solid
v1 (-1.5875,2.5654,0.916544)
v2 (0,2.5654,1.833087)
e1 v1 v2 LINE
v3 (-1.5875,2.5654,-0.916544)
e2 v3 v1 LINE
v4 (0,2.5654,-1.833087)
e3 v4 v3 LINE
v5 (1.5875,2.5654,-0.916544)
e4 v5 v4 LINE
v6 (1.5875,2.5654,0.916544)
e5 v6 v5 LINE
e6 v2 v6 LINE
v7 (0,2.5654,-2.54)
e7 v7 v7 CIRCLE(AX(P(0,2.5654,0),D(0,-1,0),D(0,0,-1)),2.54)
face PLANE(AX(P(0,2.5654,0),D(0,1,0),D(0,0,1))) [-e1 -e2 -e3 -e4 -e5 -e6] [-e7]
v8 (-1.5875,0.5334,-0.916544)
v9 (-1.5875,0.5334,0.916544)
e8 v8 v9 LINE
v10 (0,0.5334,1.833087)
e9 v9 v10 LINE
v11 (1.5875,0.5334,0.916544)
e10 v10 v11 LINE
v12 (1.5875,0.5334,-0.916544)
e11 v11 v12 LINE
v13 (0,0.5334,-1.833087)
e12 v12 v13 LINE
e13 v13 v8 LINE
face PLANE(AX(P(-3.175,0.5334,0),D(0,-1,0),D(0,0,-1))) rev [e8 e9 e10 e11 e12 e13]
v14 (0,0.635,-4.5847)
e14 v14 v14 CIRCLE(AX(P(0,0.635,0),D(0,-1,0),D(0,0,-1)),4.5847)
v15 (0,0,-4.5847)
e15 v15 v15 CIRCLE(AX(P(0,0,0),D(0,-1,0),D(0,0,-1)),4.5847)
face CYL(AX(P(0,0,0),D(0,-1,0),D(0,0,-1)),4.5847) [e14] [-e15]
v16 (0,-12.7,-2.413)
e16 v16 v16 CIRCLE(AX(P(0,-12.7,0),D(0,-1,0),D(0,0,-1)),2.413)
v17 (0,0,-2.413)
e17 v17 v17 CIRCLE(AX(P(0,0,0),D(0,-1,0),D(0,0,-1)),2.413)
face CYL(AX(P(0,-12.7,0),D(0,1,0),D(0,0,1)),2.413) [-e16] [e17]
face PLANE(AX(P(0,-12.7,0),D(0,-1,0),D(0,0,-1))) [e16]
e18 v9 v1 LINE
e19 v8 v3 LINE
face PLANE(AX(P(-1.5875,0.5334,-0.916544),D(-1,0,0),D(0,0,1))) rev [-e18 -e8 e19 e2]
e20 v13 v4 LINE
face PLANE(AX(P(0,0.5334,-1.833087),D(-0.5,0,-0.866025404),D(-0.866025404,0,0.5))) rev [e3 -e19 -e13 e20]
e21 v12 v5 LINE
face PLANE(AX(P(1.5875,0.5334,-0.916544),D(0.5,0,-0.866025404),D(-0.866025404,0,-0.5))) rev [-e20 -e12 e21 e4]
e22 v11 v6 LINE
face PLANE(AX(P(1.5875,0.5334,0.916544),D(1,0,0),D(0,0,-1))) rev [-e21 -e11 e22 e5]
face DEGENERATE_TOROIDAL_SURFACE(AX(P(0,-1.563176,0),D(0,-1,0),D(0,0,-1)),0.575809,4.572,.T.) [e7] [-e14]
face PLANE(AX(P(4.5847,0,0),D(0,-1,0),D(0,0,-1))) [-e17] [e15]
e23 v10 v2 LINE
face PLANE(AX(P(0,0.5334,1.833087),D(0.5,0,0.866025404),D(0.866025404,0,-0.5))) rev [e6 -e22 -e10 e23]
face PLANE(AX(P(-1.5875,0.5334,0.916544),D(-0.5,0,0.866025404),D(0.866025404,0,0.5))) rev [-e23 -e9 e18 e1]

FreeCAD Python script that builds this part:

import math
import FreeCAD as App
import Part
import Sketcher

V = App.Vector
Q = App.Units.Quantity

doc = App.newDocument("Part")
params = doc.addObject("Spreadsheet::Sheet", "Params")
for row, (alias, value) in enumerate([
    ("sketch1_radius", "0.18 in"),
    ("sketch1_width", "0.1 in"),
    ("sketch1_height", "0.025 in"),
    ("sketch1_height2", "0.101 in"),
    ("revolution_angle", "360 deg"),
    ("pocket1_length", "0.08 in"),
    ("sketch3_diameter", "0.19 in"),
    ("pad1_length", "0.5 in"),
], start=1):
    params.set(f"A{row}", alias)
    params.set(f"B{row}", "=" + value)
    params.setAlias(f"B{row}", alias)

body = doc.addObject("PartDesign::Body", "Body")

# Sketch on XY plane
sketch1 = body.newObject("Sketcher::SketchObject", "Sketch")
sketch1.AttachmentSupport = (doc.getObject("XY_Plane"), [""])
sketch1.MapMode = "FlatFace"
sketch1.addGeometry([
    Part.LineSegment(V(4.6, 0, 0), V(4.6, 0.6, 0)),  # 0
    Part.ArcOfCircle(Part.Circle(V(0.6, -1.6, 0), V(0, 0, 1), 4.6), math.radians(29), math.radians(65)),  # 1
    Part.LineSegment(V(2.5, 2.6, 0), V(0, 2.6, 0)),  # 2
    Part.LineSegment(V(0, 2.6, 0), V(0, 0, 0)),  # 3
    Part.LineSegment(V(0, 0, 0), V(4.6, 0, 0)),  # 4
], False)
sketch1.addConstraint([
    Sketcher.Constraint("Coincident", 0, 2, 1, 1),
    Sketcher.Constraint("Coincident", 1, 2, 2, 1),
    Sketcher.Constraint("Coincident", 2, 2, 3, 1),
    Sketcher.Constraint("Coincident", 3, 2, 4, 1),
    Sketcher.Constraint("Coincident", 4, 2, 0, 1),
    Sketcher.Constraint("Vertical", 0),
    Sketcher.Constraint("Horizontal", 2),
    Sketcher.Constraint("Vertical", 3),
    Sketcher.Constraint("Horizontal", 4),
    Sketcher.Constraint("Coincident", 3, 2, -1, 1),
    Sketcher.Constraint("Radius", 1, Q("0.18 in")),
    Sketcher.Constraint("DistanceX", 2, 2, 2, 1, Q("0.1 in")),
    Sketcher.Constraint("DistanceY", 0, 1, 0, 2, Q("0.025 in")),
    Sketcher.Constraint("DistanceY", 3, 2, 3, 1, Q("0.101 in")),
    Sketcher.Constraint("DistanceX", 4, 1, 4, 2, Q("0.1805 in")),
])
sketch1.setExpression("Constraints[10]", "Params.sketch1_radius")
sketch1.setExpression("Constraints[11]", "Params.sketch1_width")
sketch1.setExpression("Constraints[12]", "Params.sketch1_height")
sketch1.setExpression("Constraints[13]", "Params.sketch1_height2")
revolution = body.newObject("PartDesign::Revolution", "Revolution")
revolution.Profile = sketch1
revolution.ReferenceAxis = (sketch1, ["V_Axis"])
revolution.setExpression("Angle", "Params.revolution_angle")

# Sketch on XZ plane
sketch2 = body.newObject("Sketcher::SketchObject", "Sketch001")
sketch2.AttachmentSupport = (doc.getObject("XZ_Plane"), [""])
sketch2.MapMode = "FlatFace"
sketch2.AttachmentOffset = App.Placement(V(0, 0, -0.101 * 25.4), App.Rotation())
sketch2.addGeometry([
    Part.LineSegment(V(0, 1.8, 0), V(1.6, 0.9, 0)),  # 0
    Part.LineSegment(V(1.6, 0.9, 0), V(1.6, -0.9, 0)),  # 1
    Part.LineSegment(V(1.6, -0.9, 0), V(0, -1.8, 0)),  # 2
    Part.LineSegment(V(0, -1.8, 0), V(-1.6, -0.9, 0)),  # 3
    Part.LineSegment(V(-1.6, -0.9, 0), V(-1.6, 0.9, 0)),  # 4
    Part.LineSegment(V(-1.6, 0.9, 0), V(0, 1.8, 0)),  # 5
], False)
sketch2.addConstraint([
    Sketcher.Constraint("Coincident", 0, 2, 1, 1),
    Sketcher.Constraint("Coincident", 1, 2, 2, 1),
    Sketcher.Constraint("Coincident", 2, 2, 3, 1),
    Sketcher.Constraint("Coincident", 3, 2, 4, 1),
    Sketcher.Constraint("Coincident", 4, 2, 5, 1),
    Sketcher.Constraint("Coincident", 5, 2, 0, 1),
    Sketcher.Constraint("Vertical", 1),
    Sketcher.Constraint("Vertical", 4),
    Sketcher.Constraint("Symmetric", 0, 2, 3, 2, -1, 1),
    Sketcher.Constraint("Symmetric", 2, 2, 5, 2, -1, 1),
    Sketcher.Constraint("PointOnObject", 2, 2, -2),
    Sketcher.Constraint("Parallel", 2, 5),
    Sketcher.Constraint("Horizontal", 1, 2, 3, 2),
    Sketcher.Constraint("Angle", 0, Q("-30 deg")),
    Sketcher.Constraint("DistanceX", -1, 1, 0, 2, Q("0.0625 in")),
    Sketcher.Constraint("DistanceY", 1, 2, 1, 1, 1.833087),
])
pocket1 = body.newObject("PartDesign::Pocket", "Pocket")
pocket1.Profile = sketch2
pocket1.setExpression("Length", "Params.pocket1_length")
pocket1.Reversed = True

# Sketch on XZ plane
sketch3 = body.newObject("Sketcher::SketchObject", "Sketch002")
sketch3.AttachmentSupport = (doc.getObject("XZ_Plane"), [""])
sketch3.MapMode = "FlatFace"
sketch3.addGeometry(Part.Circle(V(0, 0, 0), V(0, 0, 1), 2.4), False)
sketch3.addConstraint([
    Sketcher.Constraint("Coincident", 0, 3, -1, 1),
    Sketcher.Constraint("Diameter", 0, Q("0.19 in")),
])
sketch3.setExpression("Constraints[1]", "Params.sketch3_diameter")
pad1 = body.newObject("PartDesign::Pad", "Pad")
pad1.Profile = sketch3
pad1.setExpression("Length", "Params.pad1_length")

doc.recompute()
